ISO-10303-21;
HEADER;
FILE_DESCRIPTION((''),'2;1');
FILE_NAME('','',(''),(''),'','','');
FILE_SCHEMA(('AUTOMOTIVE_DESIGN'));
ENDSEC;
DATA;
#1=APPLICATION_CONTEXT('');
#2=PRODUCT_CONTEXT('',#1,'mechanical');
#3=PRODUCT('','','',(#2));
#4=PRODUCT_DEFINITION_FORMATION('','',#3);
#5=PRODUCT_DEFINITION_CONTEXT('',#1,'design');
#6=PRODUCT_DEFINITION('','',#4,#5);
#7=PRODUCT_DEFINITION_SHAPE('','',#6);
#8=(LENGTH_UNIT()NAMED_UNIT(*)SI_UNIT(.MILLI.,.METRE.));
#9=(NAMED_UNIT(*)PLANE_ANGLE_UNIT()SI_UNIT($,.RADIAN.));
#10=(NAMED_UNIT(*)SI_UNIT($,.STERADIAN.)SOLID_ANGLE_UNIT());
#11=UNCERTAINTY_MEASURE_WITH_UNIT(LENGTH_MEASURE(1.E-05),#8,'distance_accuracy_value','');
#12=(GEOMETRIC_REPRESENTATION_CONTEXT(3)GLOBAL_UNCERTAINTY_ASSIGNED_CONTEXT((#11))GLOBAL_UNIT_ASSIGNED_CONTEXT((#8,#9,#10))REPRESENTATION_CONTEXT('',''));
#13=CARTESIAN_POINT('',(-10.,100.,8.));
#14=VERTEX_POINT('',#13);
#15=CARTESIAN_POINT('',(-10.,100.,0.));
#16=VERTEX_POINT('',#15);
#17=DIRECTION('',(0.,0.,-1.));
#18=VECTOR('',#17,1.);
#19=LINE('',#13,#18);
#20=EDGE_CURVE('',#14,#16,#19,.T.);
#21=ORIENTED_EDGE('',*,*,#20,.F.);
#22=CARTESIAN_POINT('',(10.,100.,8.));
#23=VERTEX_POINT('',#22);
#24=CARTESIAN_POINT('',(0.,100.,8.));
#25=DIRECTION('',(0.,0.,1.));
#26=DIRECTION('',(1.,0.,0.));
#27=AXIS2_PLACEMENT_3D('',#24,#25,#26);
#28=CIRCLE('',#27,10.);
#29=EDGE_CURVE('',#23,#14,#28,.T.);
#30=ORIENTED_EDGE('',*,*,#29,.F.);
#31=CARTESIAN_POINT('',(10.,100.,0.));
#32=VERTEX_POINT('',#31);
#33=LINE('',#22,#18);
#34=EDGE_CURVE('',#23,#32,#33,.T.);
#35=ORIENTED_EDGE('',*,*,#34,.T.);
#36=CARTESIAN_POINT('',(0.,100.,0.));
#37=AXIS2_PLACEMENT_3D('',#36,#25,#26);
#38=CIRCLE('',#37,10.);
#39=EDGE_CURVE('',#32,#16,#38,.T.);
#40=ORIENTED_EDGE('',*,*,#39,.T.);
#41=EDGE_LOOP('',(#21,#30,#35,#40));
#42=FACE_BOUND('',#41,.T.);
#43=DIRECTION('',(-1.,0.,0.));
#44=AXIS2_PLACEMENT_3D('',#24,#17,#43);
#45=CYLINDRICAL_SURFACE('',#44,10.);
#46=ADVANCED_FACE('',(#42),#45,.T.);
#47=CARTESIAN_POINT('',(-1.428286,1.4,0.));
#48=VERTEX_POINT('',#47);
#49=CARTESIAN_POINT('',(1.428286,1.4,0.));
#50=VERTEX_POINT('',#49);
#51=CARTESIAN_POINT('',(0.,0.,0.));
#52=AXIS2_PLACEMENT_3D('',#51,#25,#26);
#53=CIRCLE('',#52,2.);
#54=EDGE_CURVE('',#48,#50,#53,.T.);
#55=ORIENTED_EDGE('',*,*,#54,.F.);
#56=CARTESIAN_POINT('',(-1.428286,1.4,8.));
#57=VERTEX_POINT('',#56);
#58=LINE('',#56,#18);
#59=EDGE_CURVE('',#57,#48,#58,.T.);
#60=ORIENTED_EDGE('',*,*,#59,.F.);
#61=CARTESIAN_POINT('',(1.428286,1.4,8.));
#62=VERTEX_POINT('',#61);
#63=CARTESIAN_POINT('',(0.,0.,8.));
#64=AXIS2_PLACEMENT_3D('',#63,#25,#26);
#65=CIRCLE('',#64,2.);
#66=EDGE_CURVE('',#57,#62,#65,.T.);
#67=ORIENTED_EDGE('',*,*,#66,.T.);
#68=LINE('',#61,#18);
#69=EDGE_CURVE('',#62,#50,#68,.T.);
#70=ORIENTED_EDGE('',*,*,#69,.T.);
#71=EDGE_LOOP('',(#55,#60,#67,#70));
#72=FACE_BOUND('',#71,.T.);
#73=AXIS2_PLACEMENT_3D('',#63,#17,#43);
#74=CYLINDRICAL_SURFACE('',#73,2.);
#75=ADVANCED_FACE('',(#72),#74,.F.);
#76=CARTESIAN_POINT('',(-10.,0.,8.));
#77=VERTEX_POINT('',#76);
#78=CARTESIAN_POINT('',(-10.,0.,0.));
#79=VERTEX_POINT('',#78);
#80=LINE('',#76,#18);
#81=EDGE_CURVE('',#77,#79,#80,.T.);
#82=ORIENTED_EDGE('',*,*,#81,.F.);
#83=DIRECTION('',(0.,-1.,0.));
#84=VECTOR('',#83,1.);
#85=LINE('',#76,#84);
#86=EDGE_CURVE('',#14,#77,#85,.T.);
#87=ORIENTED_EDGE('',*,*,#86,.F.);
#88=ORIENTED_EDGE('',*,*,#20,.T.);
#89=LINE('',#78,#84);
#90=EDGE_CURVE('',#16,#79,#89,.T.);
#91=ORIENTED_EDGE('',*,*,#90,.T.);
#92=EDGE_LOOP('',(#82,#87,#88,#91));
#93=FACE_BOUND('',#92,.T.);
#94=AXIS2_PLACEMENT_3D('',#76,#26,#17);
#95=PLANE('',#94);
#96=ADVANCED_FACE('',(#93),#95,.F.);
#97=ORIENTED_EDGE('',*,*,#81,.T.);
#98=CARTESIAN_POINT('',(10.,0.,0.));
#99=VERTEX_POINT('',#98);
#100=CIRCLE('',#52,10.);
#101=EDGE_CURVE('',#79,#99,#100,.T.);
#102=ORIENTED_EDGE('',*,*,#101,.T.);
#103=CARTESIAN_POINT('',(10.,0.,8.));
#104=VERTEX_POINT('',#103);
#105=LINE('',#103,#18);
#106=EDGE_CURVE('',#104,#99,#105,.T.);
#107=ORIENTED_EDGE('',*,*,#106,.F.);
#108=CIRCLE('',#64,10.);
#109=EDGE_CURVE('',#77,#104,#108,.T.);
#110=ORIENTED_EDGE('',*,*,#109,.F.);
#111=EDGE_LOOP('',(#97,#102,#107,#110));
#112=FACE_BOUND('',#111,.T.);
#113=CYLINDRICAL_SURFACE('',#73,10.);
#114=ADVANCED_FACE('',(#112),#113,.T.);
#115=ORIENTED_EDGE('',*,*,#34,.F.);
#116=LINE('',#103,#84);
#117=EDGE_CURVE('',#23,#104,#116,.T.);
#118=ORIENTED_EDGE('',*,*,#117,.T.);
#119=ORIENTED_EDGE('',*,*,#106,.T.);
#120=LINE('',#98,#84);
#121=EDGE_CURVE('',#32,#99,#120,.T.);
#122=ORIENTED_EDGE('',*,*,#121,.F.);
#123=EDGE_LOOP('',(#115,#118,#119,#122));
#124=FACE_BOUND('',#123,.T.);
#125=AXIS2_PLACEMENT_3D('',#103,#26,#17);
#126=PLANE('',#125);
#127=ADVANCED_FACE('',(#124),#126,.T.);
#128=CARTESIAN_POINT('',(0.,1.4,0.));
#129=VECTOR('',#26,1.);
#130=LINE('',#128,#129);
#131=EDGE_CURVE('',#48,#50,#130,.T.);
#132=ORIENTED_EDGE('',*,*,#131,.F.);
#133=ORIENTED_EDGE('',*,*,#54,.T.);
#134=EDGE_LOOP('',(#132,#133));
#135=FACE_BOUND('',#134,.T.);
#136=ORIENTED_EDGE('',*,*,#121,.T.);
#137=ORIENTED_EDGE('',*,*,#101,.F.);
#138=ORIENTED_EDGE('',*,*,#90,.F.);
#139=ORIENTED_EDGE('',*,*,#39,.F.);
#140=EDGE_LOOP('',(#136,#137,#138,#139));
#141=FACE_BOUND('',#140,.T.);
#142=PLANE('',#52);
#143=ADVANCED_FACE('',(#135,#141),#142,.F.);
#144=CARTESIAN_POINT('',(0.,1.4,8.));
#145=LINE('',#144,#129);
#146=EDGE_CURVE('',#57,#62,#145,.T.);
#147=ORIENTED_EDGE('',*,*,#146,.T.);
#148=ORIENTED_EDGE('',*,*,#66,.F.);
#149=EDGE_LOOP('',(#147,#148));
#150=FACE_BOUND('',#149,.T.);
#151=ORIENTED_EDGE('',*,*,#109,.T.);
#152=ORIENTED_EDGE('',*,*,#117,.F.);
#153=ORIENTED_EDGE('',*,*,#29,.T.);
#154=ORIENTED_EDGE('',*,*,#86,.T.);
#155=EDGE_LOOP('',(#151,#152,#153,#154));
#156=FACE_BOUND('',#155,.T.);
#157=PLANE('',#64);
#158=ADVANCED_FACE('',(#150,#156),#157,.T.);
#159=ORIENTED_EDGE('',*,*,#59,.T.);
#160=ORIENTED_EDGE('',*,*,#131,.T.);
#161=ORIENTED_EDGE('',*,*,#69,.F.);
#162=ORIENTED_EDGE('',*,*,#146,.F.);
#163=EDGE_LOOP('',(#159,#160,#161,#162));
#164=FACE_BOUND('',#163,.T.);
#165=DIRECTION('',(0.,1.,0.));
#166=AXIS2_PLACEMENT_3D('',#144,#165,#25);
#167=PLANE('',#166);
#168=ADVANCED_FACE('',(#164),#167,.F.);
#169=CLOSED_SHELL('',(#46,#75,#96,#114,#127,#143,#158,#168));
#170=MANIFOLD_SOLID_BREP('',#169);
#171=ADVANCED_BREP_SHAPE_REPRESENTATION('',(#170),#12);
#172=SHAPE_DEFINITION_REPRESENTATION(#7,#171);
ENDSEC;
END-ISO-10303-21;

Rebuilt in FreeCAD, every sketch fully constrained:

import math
import FreeCAD as App
import Part
import Sketcher

V = App.Vector

doc = App.newDocument("Part")
body = doc.addObject("PartDesign::Body", "Body")

# Sketch on XY plane
sketch1 = body.newObject("Sketcher::SketchObject", "Sketch")
sketch1.AttachmentSupport = (doc.getObject("XY_Plane"), [""])
sketch1.MapMode = "FlatFace"
sketch1.addGeometry([
    Part.LineSegment(V(10, 0, 0), V(10, 100, 0)),  # 0
    Part.ArcOfCircle(Part.Circle(V(0, 100, 0), V(0, 0, 1), 10), math.radians(0), math.radians(180)),  # 1
    Part.LineSegment(V(-10, 100, 0), V(-10, 0, 0)),  # 2
    Part.ArcOfCircle(Part.Circle(V(0, 0, 0), V(0, 0, 1), 10), math.radians(180), math.radians(360)),  # 3
    Part.LineSegment(V(-1.4, 1.4, 0), V(1.4, 1.4, 0)),  # 4
    Part.ArcOfCircle(Part.Circle(V(0, 0, 0), V(0, 0, 1), 2), math.radians(136), math.radians(404)),  # 5
], False)
sketch1.addConstraint([
    Sketcher.Constraint("Tangent", 0, 2, 1, 1),
    Sketcher.Constraint("Tangent", 1, 2, 2, 1),
    Sketcher.Constraint("Tangent", 2, 2, 3, 1),
    Sketcher.Constraint("Tangent", 3, 2, 0, 1),
    Sketcher.Constraint("Coincident", 4, 1, 5, 1),
    Sketcher.Constraint("Coincident", 5, 2, 4, 2),
    Sketcher.Constraint("Vertical", 0),
    Sketcher.Constraint("Vertical", 2),
    Sketcher.Constraint("Horizontal", 4),
    Sketcher.Constraint("Coincident", 3, 3, -1, 1),
    Sketcher.Constraint("Coincident", 5, 3, -1, 1),
    Sketcher.Constraint("Radius", 1, 10.0),
    Sketcher.Constraint("Radius", 5, 2.0),
    Sketcher.Constraint("DistanceY", 0, 1, 0, 2, 100.0),
    Sketcher.Constraint("DistanceY", -1, 1, 4, 1, 1.4),
])
pad1 = body.newObject("PartDesign::Pad", "Pad")
pad1.Profile = sketch1
pad1.Length = 8

doc.recompute()
